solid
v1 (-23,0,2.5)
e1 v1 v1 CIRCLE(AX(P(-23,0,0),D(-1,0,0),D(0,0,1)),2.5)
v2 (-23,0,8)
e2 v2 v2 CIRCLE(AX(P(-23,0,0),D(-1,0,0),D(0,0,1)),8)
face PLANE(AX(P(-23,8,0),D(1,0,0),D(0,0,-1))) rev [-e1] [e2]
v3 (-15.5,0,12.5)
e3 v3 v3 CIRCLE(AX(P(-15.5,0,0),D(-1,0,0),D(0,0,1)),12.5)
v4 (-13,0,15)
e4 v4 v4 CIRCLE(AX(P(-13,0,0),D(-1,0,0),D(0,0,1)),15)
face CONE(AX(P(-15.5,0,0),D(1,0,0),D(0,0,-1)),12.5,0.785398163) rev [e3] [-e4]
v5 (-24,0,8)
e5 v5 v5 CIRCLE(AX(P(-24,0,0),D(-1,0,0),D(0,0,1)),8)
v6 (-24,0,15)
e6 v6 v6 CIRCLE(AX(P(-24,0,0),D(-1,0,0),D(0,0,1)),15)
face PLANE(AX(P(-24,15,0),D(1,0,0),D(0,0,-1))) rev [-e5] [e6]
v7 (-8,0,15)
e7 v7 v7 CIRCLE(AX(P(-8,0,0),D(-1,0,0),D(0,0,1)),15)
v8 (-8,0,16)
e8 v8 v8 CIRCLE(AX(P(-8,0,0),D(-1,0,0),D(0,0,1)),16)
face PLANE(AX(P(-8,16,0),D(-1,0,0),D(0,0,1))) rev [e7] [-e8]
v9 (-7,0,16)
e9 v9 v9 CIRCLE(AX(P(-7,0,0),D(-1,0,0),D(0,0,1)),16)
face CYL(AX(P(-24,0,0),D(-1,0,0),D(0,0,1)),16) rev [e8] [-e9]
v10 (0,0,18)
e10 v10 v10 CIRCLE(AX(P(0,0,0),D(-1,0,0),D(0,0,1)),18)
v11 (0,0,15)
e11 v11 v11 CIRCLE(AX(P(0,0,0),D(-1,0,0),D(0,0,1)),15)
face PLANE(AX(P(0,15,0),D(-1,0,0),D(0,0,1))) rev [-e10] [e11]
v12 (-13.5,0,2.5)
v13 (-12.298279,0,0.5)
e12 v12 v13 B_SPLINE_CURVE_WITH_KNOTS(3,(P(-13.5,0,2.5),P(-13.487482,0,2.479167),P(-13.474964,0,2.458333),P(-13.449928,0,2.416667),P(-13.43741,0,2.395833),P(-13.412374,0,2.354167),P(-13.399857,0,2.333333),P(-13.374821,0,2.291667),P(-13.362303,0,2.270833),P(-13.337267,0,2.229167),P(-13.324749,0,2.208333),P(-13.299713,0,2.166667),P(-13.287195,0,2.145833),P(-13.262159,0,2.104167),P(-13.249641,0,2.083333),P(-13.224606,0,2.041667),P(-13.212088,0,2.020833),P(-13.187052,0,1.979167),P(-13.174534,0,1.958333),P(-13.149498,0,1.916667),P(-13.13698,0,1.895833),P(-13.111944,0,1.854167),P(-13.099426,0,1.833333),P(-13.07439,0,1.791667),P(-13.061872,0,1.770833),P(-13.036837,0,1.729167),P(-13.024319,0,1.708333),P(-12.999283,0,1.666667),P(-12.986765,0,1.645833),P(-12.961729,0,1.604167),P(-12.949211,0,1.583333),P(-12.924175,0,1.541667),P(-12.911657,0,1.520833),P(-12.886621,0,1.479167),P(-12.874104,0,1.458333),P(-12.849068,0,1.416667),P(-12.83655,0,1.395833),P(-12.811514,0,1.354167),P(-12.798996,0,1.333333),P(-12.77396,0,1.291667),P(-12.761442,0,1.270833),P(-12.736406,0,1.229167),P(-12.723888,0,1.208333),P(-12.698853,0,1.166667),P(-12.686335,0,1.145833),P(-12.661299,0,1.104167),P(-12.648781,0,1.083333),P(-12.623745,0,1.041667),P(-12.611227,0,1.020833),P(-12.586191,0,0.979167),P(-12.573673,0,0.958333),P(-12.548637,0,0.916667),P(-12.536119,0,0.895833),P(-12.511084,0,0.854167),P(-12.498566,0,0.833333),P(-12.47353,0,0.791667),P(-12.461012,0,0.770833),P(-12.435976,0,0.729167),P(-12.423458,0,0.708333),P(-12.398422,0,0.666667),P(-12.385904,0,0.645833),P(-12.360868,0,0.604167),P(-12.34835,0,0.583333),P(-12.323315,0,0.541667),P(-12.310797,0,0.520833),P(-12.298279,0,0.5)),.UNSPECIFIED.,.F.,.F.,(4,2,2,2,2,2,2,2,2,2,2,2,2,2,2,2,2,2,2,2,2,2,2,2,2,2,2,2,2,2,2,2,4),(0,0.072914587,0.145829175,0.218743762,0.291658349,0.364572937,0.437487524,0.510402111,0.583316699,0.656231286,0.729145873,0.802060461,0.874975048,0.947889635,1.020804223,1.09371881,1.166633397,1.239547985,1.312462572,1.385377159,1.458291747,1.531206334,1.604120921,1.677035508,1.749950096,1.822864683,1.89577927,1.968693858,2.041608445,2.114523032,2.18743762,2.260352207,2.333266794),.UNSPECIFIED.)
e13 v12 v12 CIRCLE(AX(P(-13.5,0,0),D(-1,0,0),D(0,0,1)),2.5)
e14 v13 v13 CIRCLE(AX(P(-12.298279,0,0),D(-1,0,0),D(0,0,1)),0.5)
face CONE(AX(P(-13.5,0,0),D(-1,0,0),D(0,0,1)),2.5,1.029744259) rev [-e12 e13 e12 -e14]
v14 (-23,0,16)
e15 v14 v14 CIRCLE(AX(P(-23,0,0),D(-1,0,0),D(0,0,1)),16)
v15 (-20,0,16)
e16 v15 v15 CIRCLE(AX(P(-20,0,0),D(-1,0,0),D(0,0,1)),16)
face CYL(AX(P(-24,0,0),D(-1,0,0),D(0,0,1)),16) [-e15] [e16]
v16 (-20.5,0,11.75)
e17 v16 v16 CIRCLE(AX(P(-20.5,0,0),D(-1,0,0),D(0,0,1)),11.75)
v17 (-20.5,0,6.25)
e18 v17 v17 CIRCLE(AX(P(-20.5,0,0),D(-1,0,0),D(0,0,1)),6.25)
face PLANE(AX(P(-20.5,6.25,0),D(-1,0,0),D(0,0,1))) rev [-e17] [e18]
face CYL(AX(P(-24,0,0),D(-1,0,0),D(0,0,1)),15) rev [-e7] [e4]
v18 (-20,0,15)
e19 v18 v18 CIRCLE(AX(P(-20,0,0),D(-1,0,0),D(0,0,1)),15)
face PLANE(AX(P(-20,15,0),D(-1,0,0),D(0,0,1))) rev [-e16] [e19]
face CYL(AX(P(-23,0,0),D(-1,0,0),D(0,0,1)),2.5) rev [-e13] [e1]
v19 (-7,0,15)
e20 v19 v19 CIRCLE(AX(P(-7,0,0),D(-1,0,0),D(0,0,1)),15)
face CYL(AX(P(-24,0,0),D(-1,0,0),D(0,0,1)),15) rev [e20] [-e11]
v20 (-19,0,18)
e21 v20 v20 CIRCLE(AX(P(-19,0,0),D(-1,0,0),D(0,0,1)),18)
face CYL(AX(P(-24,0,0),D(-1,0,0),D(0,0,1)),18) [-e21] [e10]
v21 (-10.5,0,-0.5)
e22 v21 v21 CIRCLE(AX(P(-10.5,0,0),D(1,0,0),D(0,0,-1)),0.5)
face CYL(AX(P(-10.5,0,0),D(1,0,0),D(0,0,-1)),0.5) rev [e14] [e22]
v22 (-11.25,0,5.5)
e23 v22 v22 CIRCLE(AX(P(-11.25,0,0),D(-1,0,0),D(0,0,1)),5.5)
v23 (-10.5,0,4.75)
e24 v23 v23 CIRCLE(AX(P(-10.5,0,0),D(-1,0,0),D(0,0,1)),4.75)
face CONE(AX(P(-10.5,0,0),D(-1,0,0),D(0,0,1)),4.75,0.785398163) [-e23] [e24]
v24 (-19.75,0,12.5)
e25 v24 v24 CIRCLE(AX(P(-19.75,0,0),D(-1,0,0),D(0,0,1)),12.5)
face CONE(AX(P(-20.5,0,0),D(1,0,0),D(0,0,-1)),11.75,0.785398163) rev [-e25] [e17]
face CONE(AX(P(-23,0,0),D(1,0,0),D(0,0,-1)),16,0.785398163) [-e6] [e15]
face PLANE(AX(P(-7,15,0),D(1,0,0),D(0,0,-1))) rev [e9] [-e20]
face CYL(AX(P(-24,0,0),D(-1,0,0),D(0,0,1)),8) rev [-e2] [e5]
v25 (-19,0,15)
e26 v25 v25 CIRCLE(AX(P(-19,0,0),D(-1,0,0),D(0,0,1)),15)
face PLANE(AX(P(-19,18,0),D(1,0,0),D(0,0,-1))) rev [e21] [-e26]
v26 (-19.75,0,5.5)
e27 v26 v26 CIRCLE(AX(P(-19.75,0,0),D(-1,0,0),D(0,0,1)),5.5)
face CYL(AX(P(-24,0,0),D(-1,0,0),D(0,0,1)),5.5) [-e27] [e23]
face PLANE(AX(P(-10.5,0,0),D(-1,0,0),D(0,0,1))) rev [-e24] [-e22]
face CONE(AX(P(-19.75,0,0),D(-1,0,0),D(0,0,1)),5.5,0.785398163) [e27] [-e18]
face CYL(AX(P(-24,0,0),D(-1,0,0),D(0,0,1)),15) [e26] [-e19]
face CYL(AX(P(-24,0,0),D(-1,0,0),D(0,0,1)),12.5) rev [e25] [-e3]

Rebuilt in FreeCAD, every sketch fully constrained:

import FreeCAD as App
import Part
import Sketcher
from FreeCAD import Vector
Q = App.Units.Quantity


def add_polygon(sketch, points):
    """Adds a closed chain of lines whose ends are joined by coincident constraints."""
    first, n = sketch.GeometryCount, len(points)
    for a, b in zip(points, points[1:] + points[:1]):
        sketch.addGeometry(Part.LineSegment(App.Vector(*a, 0), App.Vector(*b, 0)), False)
    for i in range(n):
        sketch.addConstraint(Sketcher.Constraint("Coincident", first + i, 2, first + (i + 1) % n, 1))

doc = App.newDocument("Part")
params = doc.addObject("Spreadsheet::Sheet", "Params")
for row, (alias, value) in enumerate([
    ("sketch1_width", "19 mm"),
    ("sketch1_width2", "1 mm"),
    ("sketch1_width3", "3 mm"),
    ("sketch1_width4", "5 mm"),
    ("sketch1_width5", "7 mm"),
    ("revolution_angle", "360 deg"),
    ("sketch2_diameter", "1 mm"),
    ("hole_diameter", "1 mm"),
    ("hole_depth", "2 mm"),
    ("sketch3_diameter", "5 mm"),
    ("hole2_diameter", "5 mm"),
    ("hole2_depth", "9.5 mm"),
], start=1):
    params.set(f"A{row}", alias)
    params.set(f"B{row}", "=" + value)
    params.setAlias(f"B{row}", alias)

body = doc.addObject("PartDesign::Body", "Body")

# Sketch on XY plane
sketch1 = doc.addObject("Sketcher::SketchObject", "Sketch")
body.addObject(sketch1)
sketch1.AttachmentSupport = (doc.XY_Plane, [""])
sketch1.MapMode = "FlatFace"
add_polygon(sketch1, [(0, 15), (0, 18), (-19, 18), (-19, 15), (-20, 15), (-20, 16), (-23, 16), (-24, 15), (-24, 8), (-23, 8), (-23, 0), (-10.5, 0), (-10.5, 4.8), (-11.2, 5.5), (-19.8, 5.5), (-20.5, 6.2), (-20.5, 11.8), (-19.8, 12.5), (-15.5, 12.5), (-13, 15), (-8, 15), (-8, 16), (-7, 16), (-7, 15)])  # lines 0-23
sketch1.addConstraint([
    Sketcher.Constraint("Vertical", 0),
    Sketcher.Constraint("Horizontal", 1),
    Sketcher.Constraint("Vertical", 2),
    Sketcher.Constraint("Horizontal", 3),
    Sketcher.Constraint("Vertical", 4),
    Sketcher.Constraint("Horizontal", 5),
    Sketcher.Constraint("Vertical", 7),
    Sketcher.Constraint("Horizontal", 8),
    Sketcher.Constraint("Vertical", 9),
    Sketcher.Constraint("Horizontal", 10),
    Sketcher.Constraint("Vertical", 11),
    Sketcher.Constraint("Horizontal", 13),
    Sketcher.Constraint("Vertical", 15),
    Sketcher.Constraint("Horizontal", 17),
    Sketcher.Constraint("Horizontal", 19),
    Sketcher.Constraint("Vertical", 20),
    Sketcher.Constraint("Horizontal", 21),
    Sketcher.Constraint("Vertical", 22),
    Sketcher.Constraint("Horizontal", 23),
    Sketcher.Constraint("PointOnObject", 0, 2, -2),
    Sketcher.Constraint("PointOnObject", 9, 2, -1),
    Sketcher.Constraint("Perpendicular", 6, 12),
    Sketcher.Constraint("Parallel", 12, 14),
    Sketcher.Constraint("Perpendicular", 14, 16),
    Sketcher.Constraint("Parallel", 16, 18),
    Sketcher.Constraint("Horizontal", 3, 2, 6, 2),
    Sketcher.Constraint("Horizontal", 6, 2, 18, 2),
    Sketcher.Constraint("Horizontal", 5, 2, 20, 2),
    Sketcher.Constraint("Horizontal", 19, 2, 22, 2),
    Sketcher.Constraint("Vertical", 5, 2, 8, 2),
    Sketcher.Constraint("Vertical", 13, 2, 16, 2),
    Sketcher.Constraint("Equal", 3, 8),
    Sketcher.Constraint("Equal", 8, 21),
    Sketcher.Constraint("Equal", 5, 0),
    Sketcher.Constraint("Equal", 21, 4),
    Sketcher.Constraint("Equal", 23, 7),
    Sketcher.Constraint("Equal", 12, 14),
    Sketcher.Constraint("DistanceX", 1, 2, 1, 1, Q("19 mm")),
    Sketcher.Constraint("DistanceX", 3, 2, 3, 1, Q("1 mm")),
    Sketcher.Constraint("DistanceX", 5, 2, 5, 1, Q("3 mm")),
    Sketcher.Constraint("DistanceX", 19, 1, 19, 2, Q("5 mm")),
    Sketcher.Constraint("DistanceX", 23, 1, 23, 2, Q("7 mm")),
    Sketcher.Constraint("DistanceY", 9, 2, 9, 1, Q("8 mm")),
    Sketcher.Constraint("DistanceX", 10, 1, 10, 2, Q("12.5 mm")),
    Sketcher.Constraint("DistanceX", 13, 2, 13, 1, Q("8.5 mm")),
    Sketcher.Constraint("DistanceY", 15, 1, 15, 2, Q("5.5 mm")),
    Sketcher.Constraint("DistanceX", 15, 2, 17, 2, Q("5 mm")),
    Sketcher.Constraint("DistanceX", 17, 1, 17, 2, Q("4.25 mm")),
])
sketch1.setExpression("Constraints[61]", "Params.sketch1_width")
sketch1.setExpression("Constraints[62]", "Params.sketch1_width2")
sketch1.setExpression("Constraints[63]", "Params.sketch1_width3")
sketch1.setExpression("Constraints[64]", "Params.sketch1_width4")
sketch1.setExpression("Constraints[65]", "Params.sketch1_width5")
revolution = doc.addObject("PartDesign::Revolution", "Revolution")
body.addObject(revolution)
revolution.Profile = sketch1
revolution.ReferenceAxis = (sketch1, ["H_Axis"])
revolution.setExpression("Angle", "Params.revolution_angle")

# Sketch on YZ plane
sketch2 = doc.addObject("Sketcher::SketchObject", "Sketch001")
body.addObject(sketch2)
sketch2.AttachmentSupport = (doc.YZ_Plane, [""])
sketch2.MapMode = "FlatFace"
sketch2.AttachmentOffset = App.Placement(Vector(0, 0, -10.5), App.Rotation())
sketch2.addGeometry(Part.Circle(Vector(0, 0, 0), Vector(0, 0, 1), 0.5), False)
sketch2.addConstraint([
    Sketcher.Constraint("Coincident", 0, 3, -1, 1),
    Sketcher.Constraint("Diameter", 0, Q("1 mm")),
])
sketch2.setExpression("Constraints[1]", "Params.sketch2_diameter")
doc.recompute()
hole = doc.addObject("PartDesign::Hole", "Hole")
body.addObject(hole)
hole.Profile = sketch2
hole.ThreadType = "None"
hole.setExpression("Diameter", "Params.hole_diameter")
hole.DepthType = "Dimension"
hole.setExpression("Depth", "Params.hole_depth")
hole.DrillPoint = "Angled"
hole.DrillPointAngle = 118

# Sketch on YZ plane
sketch3 = doc.addObject("Sketcher::SketchObject", "Sketch002")
body.addObject(sketch3)
sketch3.AttachmentSupport = (doc.YZ_Plane, [""])
sketch3.MapMode = "FlatFace"
sketch3.AttachmentOffset = App.Placement(Vector(0, 0, -23), App.Rotation())
sketch3.addGeometry(Part.Circle(Vector(0, 0, 0), Vector(0, 0, 1), 2.5), False)
sketch3.addConstraint([
    Sketcher.Constraint("Coincident", 0, 3, -1, 1),
    Sketcher.Constraint("Diameter", 0, Q("5 mm")),
])
sketch3.setExpression("Constraints[1]", "Params.sketch3_diameter")
doc.recompute()
hole2 = doc.addObject("PartDesign::Hole", "Hole001")
body.addObject(hole2)
hole2.Profile = sketch3
hole2.ThreadType = "None"
hole2.setExpression("Diameter", "Params.hole2_diameter")
hole2.DepthType = "Dimension"
hole2.setExpression("Depth", "Params.hole2_depth")
hole2.DrillPoint = "Angled"
hole2.DrillPointAngle = 118
hole2.Reversed = True

doc.recompute()
